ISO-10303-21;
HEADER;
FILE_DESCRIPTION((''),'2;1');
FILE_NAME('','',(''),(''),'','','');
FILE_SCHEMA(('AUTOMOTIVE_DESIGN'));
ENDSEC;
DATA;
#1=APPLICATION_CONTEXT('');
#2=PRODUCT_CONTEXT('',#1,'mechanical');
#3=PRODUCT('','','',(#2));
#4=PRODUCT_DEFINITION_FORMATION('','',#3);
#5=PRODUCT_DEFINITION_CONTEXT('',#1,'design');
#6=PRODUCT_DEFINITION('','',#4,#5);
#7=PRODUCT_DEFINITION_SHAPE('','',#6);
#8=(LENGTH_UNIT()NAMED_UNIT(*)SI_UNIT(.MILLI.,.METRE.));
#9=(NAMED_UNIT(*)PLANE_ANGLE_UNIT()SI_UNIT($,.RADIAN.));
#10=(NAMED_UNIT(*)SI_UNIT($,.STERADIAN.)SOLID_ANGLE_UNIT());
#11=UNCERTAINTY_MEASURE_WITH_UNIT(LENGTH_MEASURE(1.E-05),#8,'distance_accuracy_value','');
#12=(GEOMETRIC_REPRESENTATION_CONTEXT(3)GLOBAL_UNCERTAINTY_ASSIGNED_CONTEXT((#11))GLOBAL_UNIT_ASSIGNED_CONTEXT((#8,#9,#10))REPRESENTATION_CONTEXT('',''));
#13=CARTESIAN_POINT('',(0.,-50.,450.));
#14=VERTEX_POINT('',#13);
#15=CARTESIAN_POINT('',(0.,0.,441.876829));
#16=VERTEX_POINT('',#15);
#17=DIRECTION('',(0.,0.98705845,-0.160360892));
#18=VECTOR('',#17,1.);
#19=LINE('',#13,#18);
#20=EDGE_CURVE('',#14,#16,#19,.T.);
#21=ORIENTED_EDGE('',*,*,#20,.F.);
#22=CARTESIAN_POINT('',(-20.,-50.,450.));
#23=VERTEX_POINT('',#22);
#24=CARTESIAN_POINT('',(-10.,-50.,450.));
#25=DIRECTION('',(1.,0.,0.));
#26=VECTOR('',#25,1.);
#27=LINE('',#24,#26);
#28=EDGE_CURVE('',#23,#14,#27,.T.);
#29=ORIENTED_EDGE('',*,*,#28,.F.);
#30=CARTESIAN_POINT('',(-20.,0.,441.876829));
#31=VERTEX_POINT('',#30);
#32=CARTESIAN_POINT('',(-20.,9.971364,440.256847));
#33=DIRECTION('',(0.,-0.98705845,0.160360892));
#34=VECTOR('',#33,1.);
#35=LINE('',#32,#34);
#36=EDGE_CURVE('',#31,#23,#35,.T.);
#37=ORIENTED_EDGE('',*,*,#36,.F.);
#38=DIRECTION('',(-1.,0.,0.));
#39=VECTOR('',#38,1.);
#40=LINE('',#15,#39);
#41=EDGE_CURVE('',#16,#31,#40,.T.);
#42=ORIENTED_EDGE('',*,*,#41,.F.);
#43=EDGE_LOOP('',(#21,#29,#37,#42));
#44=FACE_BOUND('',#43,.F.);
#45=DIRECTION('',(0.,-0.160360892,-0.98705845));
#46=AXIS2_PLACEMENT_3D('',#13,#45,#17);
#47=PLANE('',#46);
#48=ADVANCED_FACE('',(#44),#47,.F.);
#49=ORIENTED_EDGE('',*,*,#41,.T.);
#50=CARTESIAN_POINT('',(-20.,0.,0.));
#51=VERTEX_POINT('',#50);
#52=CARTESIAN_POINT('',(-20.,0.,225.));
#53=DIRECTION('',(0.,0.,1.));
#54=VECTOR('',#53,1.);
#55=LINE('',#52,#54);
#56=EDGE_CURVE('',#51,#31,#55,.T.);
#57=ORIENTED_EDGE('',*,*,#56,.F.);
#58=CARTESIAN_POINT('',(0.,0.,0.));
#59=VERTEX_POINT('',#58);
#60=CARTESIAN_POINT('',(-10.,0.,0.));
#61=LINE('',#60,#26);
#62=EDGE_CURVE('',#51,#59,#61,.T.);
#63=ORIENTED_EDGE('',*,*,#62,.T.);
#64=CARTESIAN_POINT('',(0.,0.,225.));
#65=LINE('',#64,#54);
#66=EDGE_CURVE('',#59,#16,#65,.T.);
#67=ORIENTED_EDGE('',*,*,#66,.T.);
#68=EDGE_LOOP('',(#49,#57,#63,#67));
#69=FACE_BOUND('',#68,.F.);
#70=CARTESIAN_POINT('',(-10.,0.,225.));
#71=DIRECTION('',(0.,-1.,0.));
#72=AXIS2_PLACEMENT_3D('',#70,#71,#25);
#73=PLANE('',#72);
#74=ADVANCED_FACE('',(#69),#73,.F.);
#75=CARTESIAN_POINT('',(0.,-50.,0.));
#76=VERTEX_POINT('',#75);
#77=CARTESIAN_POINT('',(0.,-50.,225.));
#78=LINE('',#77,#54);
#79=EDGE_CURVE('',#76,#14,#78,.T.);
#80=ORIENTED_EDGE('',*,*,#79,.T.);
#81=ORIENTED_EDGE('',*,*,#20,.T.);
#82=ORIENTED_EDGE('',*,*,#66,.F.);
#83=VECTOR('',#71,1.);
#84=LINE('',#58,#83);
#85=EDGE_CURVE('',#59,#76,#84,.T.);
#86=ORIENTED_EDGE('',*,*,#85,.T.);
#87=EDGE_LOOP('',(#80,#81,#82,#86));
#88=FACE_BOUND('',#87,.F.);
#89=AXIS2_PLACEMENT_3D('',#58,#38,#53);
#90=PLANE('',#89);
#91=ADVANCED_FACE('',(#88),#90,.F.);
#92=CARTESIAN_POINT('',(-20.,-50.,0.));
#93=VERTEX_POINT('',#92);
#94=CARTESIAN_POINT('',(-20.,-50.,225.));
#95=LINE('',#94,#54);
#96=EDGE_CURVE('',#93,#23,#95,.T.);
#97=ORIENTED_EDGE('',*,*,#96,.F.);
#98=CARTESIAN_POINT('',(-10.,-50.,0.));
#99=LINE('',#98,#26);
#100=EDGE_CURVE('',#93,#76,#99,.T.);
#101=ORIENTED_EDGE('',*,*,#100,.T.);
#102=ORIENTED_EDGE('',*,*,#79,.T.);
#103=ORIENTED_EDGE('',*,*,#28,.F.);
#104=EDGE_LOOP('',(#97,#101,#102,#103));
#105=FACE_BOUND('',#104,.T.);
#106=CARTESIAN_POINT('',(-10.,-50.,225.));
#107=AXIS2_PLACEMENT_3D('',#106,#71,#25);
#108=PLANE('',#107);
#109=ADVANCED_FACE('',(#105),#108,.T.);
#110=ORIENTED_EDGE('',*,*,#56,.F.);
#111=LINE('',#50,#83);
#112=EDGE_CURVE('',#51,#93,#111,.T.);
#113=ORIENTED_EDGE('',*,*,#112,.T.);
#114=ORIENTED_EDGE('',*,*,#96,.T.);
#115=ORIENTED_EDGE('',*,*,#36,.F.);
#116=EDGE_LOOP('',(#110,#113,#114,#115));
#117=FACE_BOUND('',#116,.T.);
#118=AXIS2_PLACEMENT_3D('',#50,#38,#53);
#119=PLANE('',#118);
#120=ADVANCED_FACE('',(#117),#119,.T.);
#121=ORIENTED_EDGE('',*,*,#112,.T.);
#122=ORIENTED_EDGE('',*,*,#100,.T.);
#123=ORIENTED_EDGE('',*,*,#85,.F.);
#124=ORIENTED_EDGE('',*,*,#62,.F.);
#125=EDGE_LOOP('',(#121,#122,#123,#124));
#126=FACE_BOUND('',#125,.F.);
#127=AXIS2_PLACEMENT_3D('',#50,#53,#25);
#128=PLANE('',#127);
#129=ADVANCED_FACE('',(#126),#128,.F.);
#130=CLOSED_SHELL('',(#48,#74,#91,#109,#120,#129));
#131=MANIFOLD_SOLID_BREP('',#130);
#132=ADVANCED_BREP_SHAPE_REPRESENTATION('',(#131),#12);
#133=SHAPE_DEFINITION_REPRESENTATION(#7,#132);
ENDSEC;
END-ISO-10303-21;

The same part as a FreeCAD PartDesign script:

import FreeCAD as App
import Part
import Sketcher
from FreeCAD import Vector
Q = App.Units.Quantity

doc = App.newDocument("Part")
body = doc.addObject("PartDesign::Body", "Body")

sketch1 = body.newObject("Sketcher::SketchObject", "Sketch")
sketch1.AttachmentSupport = (doc.getObject("XZ_Plane"), [""])
sketch1.MapMode = "FlatFace"
sketch1.addGeometry([
    Part.LineSegment(Vector(-20, 450, 0), Vector(-20, 0, 0)),
    Part.LineSegment(Vector(-20, 0, 0), Vector(0, 0, 0)),
    Part.LineSegment(Vector(0, 0, 0), Vector(0, 450, 0)),
    Part.LineSegment(Vector(0, 450, 0), Vector(-20, 450, 0)),
], False)
sketch1.addConstraint([
    Sketcher.Constraint("Coincident", 0, 2, 1, 1),
    Sketcher.Constraint("Coincident", 1, 2, 2, 1),
    Sketcher.Constraint("Coincident", 2, 2, 3, 1),
    Sketcher.Constraint("Coincident", 3, 2, 0, 1),
    Sketcher.Constraint("Vertical", 0),
    Sketcher.Constraint("Horizontal", 1),
    Sketcher.Constraint("Vertical", 2),
    Sketcher.Constraint("Horizontal", 3),
    Sketcher.Constraint("Coincident", 1, 2, -1, 1),
    Sketcher.Constraint("DistanceX", 1, 1, 1, 2, Q("20 mm")),
    Sketcher.Constraint("DistanceY", 0, 2, 0, 1, Q("450 mm")),
])
pad1 = body.newObject("PartDesign::Pad", "Pad")
pad1.Profile = sketch1
pad1.Length = 50

sketch2 = body.newObject("Sketcher::SketchObject", "Sketch001")
sketch2.AttachmentSupport = (doc.getObject("YZ_Plane"), [""])
sketch2.MapMode = "FlatFace"
sketch2.addGeometry([
    Part.LineSegment(Vector(0, 450, 0), Vector(-50, 450, 0)),
    Part.LineSegment(Vector(-50, 450, 0), Vector(0, 442, 0)),
    Part.LineSegment(Vector(0, 442, 0), Vector(0, 450, 0)),
], False)
sketch2.addConstraint([
    Sketcher.Constraint("Coincident", 0, 2, 1, 1),
    Sketcher.Constraint("Coincident", 1, 2, 2, 1),
    Sketcher.Constraint("Coincident", 2, 2, 0, 1),
    Sketcher.Constraint("Horizontal", 0),
    Sketcher.Constraint("Vertical", 2),
    Sketcher.Constraint("PointOnObject", 1, 2, -2),
    Sketcher.Constraint("DistanceX", 0, 2, 0, 1, Q("50 mm")),
    Sketcher.Constraint("DistanceY", -1, 1, 0, 2, Q("450 mm")),
    Sketcher.Constraint("DistanceY", 2, 1, 2, 2, Q("8.123171 mm")),
])
pocket1 = body.newObject("PartDesign::Pocket", "Pocket")
pocket1.Profile = sketch2
pocket1.Length = 25

doc.recompute()
